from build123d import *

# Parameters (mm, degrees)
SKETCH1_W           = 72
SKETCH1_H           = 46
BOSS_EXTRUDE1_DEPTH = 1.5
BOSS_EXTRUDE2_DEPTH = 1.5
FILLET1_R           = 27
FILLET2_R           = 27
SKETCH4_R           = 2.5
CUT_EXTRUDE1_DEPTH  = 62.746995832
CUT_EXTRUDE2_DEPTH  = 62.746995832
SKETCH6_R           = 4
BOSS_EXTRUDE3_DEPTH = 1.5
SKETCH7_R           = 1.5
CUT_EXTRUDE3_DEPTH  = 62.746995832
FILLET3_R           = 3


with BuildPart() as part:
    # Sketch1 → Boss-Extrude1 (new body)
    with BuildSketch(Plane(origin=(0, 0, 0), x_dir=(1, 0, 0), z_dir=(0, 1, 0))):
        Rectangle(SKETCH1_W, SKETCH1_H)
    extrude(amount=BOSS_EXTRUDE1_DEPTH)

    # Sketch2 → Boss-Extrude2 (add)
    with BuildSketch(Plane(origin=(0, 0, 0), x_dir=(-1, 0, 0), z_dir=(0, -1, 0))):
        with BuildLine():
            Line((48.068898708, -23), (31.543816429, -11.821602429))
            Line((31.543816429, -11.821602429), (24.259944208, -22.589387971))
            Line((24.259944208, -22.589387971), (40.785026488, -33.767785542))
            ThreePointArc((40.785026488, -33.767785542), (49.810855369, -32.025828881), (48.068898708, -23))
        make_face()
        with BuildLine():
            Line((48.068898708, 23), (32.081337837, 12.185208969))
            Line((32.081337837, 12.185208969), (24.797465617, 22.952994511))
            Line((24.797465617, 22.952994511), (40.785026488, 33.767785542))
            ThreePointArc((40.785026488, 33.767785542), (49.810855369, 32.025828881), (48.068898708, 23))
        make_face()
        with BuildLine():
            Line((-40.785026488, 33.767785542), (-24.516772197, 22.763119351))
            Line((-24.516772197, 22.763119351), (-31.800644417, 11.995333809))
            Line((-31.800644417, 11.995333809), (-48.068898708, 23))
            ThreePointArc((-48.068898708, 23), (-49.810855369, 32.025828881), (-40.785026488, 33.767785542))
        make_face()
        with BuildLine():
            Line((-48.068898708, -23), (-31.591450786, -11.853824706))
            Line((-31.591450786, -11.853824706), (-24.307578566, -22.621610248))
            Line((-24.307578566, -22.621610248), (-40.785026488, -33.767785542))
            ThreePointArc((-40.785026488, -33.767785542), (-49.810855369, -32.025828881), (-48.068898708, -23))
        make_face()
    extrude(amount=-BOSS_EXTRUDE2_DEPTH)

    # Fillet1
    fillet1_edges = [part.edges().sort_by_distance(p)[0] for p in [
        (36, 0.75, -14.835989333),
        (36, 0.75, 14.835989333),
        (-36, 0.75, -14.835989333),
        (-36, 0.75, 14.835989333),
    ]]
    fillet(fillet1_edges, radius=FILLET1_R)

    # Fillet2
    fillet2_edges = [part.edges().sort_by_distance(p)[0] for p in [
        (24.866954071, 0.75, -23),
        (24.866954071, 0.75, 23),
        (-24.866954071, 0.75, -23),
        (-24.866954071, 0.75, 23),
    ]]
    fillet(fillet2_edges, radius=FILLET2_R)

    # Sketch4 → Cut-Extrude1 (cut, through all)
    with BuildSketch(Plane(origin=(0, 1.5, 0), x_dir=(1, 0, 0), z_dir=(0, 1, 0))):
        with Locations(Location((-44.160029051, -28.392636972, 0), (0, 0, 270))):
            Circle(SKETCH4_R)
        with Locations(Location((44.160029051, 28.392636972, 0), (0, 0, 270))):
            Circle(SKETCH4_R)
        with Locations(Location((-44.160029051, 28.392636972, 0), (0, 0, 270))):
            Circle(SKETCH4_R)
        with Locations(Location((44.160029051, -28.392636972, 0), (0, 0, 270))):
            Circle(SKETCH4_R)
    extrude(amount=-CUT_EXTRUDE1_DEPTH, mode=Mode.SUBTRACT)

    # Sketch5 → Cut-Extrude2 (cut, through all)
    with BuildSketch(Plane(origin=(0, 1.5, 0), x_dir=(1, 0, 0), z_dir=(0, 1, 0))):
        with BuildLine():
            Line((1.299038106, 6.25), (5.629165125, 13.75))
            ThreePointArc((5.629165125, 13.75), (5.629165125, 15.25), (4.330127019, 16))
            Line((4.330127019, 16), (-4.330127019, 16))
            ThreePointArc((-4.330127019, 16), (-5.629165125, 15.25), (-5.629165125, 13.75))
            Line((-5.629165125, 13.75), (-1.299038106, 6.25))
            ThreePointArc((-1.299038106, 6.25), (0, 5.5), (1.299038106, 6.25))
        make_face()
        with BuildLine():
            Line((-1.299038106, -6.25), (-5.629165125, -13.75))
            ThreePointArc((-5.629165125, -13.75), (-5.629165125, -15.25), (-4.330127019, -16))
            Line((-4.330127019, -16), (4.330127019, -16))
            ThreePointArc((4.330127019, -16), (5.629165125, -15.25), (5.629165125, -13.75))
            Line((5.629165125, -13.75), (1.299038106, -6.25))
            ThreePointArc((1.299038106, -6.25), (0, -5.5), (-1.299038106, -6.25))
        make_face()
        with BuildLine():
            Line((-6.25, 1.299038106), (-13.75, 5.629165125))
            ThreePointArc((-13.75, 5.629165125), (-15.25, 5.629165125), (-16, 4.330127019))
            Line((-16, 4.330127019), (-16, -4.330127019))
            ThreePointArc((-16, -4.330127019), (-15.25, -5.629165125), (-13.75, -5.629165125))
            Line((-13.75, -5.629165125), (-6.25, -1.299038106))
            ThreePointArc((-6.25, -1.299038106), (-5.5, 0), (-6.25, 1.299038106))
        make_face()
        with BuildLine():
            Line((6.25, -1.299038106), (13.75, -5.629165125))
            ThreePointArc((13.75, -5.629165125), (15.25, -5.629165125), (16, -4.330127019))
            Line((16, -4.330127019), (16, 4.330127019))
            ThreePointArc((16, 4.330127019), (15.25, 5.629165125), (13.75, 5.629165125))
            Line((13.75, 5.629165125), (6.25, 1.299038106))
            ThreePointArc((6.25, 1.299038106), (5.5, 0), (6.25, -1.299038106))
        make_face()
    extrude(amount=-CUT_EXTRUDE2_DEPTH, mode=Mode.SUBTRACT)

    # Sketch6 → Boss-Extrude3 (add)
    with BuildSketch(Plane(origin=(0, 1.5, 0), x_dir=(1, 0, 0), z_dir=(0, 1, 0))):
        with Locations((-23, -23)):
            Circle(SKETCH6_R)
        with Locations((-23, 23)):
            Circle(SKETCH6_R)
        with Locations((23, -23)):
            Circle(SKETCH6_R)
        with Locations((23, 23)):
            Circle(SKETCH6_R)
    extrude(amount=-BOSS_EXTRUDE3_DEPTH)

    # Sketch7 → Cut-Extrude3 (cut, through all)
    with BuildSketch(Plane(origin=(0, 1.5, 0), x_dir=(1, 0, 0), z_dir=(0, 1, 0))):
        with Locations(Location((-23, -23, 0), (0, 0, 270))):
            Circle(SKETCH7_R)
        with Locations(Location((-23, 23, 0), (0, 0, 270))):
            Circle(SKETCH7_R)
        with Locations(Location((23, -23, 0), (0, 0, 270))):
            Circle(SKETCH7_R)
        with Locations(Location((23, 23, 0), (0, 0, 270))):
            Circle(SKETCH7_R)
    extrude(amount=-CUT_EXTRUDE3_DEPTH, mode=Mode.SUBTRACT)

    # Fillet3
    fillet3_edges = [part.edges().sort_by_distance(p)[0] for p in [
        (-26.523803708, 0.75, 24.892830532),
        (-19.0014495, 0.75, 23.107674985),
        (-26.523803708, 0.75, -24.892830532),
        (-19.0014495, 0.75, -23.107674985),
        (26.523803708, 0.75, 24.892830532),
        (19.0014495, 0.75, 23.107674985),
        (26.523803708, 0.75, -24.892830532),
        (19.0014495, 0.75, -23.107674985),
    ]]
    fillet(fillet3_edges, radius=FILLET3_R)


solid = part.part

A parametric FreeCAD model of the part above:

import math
import FreeCAD as App
import Part
import Sketcher
Q = App.Units.Quantity


def edges_at(feature, points):
    """Names of the edges that pass closest to the given points."""
    edges = feature.Shape.Edges
    near = lambda p: min(range(len(edges)), key=lambda i: edges[i].distToShape(Part.Vertex(*p))[0])
    return sorted({f"Edge{near(p) + 1}" for p in points})


def add_polygon(sketch, points):
    """Adds a closed chain of lines whose ends are joined by coincident constraints."""
    first, n = sketch.GeometryCount, len(points)
    for a, b in zip(points, points[1:] + points[:1]):
        sketch.addGeometry(Part.LineSegment(App.Vector(*a, 0), App.Vector(*b, 0)), False)
    for i in range(n):
        sketch.addConstraint(Sketcher.Constraint("Coincident", first + i, 2, first + (i + 1) % n, 1))

doc = App.newDocument("Part")
body = doc.addObject("PartDesign::Body", "Body")

# Sketch on XZ plane
sketch1 = body.newObject("Sketcher::SketchObject", "Sketch")
sketch1.AttachmentSupport = (doc.getObject("XZ_Plane"), [""])
sketch1.MapMode = "FlatFace"
add_polygon(sketch1, [(-36, -23), (-36, 23), (36, 23), (36, -23)])  # lines 0-3
sketch1.addConstraint([
    Sketcher.Constraint("Vertical", 0),
    Sketcher.Constraint("Horizontal", 1),
    Sketcher.Constraint("Vertical", 2),
    Sketcher.Constraint("Horizontal", 3),
    Sketcher.Constraint("Symmetric", 0, 2, 2, 2, -1, 1),
    Sketcher.Constraint("DistanceX", 1, 1, 1, 2, Q("72 mm")),
    Sketcher.Constraint("DistanceY", 0, 1, 0, 2, Q("46 mm")),
])
pad1 = body.newObject("PartDesign::Pad", "Pad")
pad1.Profile = sketch1
pad1.Length = 1.5
pad1.Reversed = True

# Sketch on XZ plane
sketch2 = body.newObject("Sketcher::SketchObject", "Sketch001")
sketch2.AttachmentSupport = (doc.getObject("XZ_Plane"), [""])
sketch2.MapMode = "FlatFace"
sketch2.addGeometry([
    Part.LineSegment(App.Vector(-48, 23, 0), App.Vector(-32, 12, 0)),  # 0
    Part.LineSegment(App.Vector(-32, 12, 0), App.Vector(-24, 23, 0)),  # 1
    Part.LineSegment(App.Vector(-24, 23, 0), App.Vector(-41, 34, 0)),  # 2
    Part.ArcOfCircle(Part.Circle(App.Vector(-44, 28, 0), App.Vector(0, 0, 1), 6), math.radians(56), math.radians(236)),  # 3
    Part.LineSegment(App.Vector(-32, -12, 0), App.Vector(-48, -23, 0)),  # 4
    Part.ArcOfCircle(Part.Circle(App.Vector(-44, -28, 0), App.Vector(0, 0, 1), 6), math.radians(124), math.radians(304)),  # 5
    Part.LineSegment(App.Vector(-41, -34, 0), App.Vector(-25, -23, 0)),  # 6
    Part.LineSegment(App.Vector(-25, -23, 0), App.Vector(-32, -12, 0)),  # 7
    Part.LineSegment(App.Vector(25, -23, 0), App.Vector(41, -34, 0)),  # 8
    Part.ArcOfCircle(Part.Circle(App.Vector(44, -28, 0), App.Vector(0, 0, 1), 6), math.radians(-124), math.radians(56)),  # 9
    Part.LineSegment(App.Vector(48, -23, 0), App.Vector(32, -12, 0)),  # 10
    Part.LineSegment(App.Vector(32, -12, 0), App.Vector(25, -23, 0)),  # 11
    Part.LineSegment(App.Vector(32, 12, 0), App.Vector(48, 23, 0)),  # 12
    Part.ArcOfCircle(Part.Circle(App.Vector(44, 28, 0), App.Vector(0, 0, 1), 6), math.radians(-56), math.radians(124)),  # 13
    Part.LineSegment(App.Vector(41, 34, 0), App.Vector(24, 23, 0)),  # 14
    Part.LineSegment(App.Vector(24, 23, 0), App.Vector(32, 12, 0)),  # 15
], False)
sketch2.addConstraint([
    Sketcher.Constraint("Coincident", 0, 2, 1, 1),
    Sketcher.Constraint("Coincident", 1, 2, 2, 1),
    Sketcher.Constraint("Tangent", 2, 2, 3, 1),
    Sketcher.Constraint("Tangent", 3, 2, 0, 1),
    Sketcher.Constraint("Tangent", 4, 2, 5, 1),
    Sketcher.Constraint("Tangent", 5, 2, 6, 1),
    Sketcher.Constraint("Coincident", 6, 2, 7, 1),
    Sketcher.Constraint("Coincident", 7, 2, 4, 1),
    Sketcher.Constraint("Tangent", 8, 2, 9, 1),
    Sketcher.Constraint("Tangent", 9, 2, 10, 1),
    Sketcher.Constraint("Coincident", 10, 2, 11, 1),
    Sketcher.Constraint("Coincident", 11, 2, 8, 1),
    Sketcher.Constraint("Tangent", 12, 2, 13, 1),
    Sketcher.Constraint("Tangent", 13, 2, 14, 1),
    Sketcher.Constraint("Coincident", 14, 2, 15, 1),
    Sketcher.Constraint("Coincident", 15, 2, 12, 1),
    Sketcher.Constraint("Equal", 3, 5),
    Sketcher.Constraint("Equal", 5, 9),
    Sketcher.Constraint("Equal", 9, 13),
    Sketcher.Constraint("Symmetric", 3, 3, 9, 3, -1, 1),
    Sketcher.Constraint("Symmetric", 5, 3, 13, 3, -1, 1),
    Sketcher.Constraint("Symmetric", 5, 3, 9, 3, -2),
    Sketcher.Constraint("Perpendicular", 0, 1),
    Sketcher.Constraint("Perpendicular", 1, 2),
    Sketcher.Constraint("Parallel", 4, 6),
    Sketcher.Constraint("Perpendicular", 6, 7),
    Sketcher.Constraint("Parallel", 2, 8),
    Sketcher.Constraint("Parallel", 8, 10),
    Sketcher.Constraint("Perpendicular", 10, 11),
    Sketcher.Constraint("Perpendicular", 7, 12),
    Sketcher.Constraint("Parallel", 12, 14),
    Sketcher.Constraint("Perpendicular", 14, 15),
    Sketcher.Constraint("Horizontal", 5, 2, 8, 2),
    Sketcher.Constraint("Radius", 3, Q("6.5 mm")),
    Sketcher.Constraint("DistanceY", -1, 1, 3, 2, Q("23 mm")),
    Sketcher.Constraint("DistanceX", 3, 2, -1, 1, Q("48.068899 mm")),
    Sketcher.Constraint("DistanceY", 5, 3, 6, 2, Q("5.430898 mm")),
    Sketcher.Constraint("Distance", 4, Q("19.30186 mm")),
    Sketcher.Constraint("DistanceY", 11, 2, -1, 1, Q("22.763119 mm")),
    Sketcher.Constraint("DistanceX", -1, 1, 14, 2, Q("24.307579 mm")),
    Sketcher.Constraint("DistanceY", 0, 2, 3, 3, Q("16.56229 mm")),
])
pad2 = body.newObject("PartDesign::Pad", "Pad001")
pad2.Profile = sketch2
pad2.Length = 1.5
pad2.Reversed = True
doc.recompute()

fillet = body.newObject("PartDesign::Fillet", "Fillet")
fillet.Base = (pad2, edges_at(pad2, [
    (36, 0.75, -14.836),
    (36, 0.75, 14.836),
    (-36, 0.75, -14.836),
    (-36, 0.75, 14.836),
]))
fillet.Radius = 27
doc.recompute()

fillet2 = body.newObject("PartDesign::Fillet", "Fillet001")
fillet2.Base = (fillet, edges_at(fillet, [
    (24.867, 0.75, -23),
    (24.867, 0.75, 23),
    (-24.867, 0.75, -23),
    (-24.867, 0.75, 23),
]))
fillet2.Radius = 27

# Sketch on XZ plane
sketch3 = body.newObject("Sketcher::SketchObject", "Sketch002")
sketch3.AttachmentSupport = (doc.getObject("XZ_Plane"), [""])
sketch3.MapMode = "FlatFace"
sketch3.AttachmentOffset = App.Placement(App.Vector(0, 0, -1.5), App.Rotation())
sketch3.addGeometry([
    Part.Circle(App.Vector(-44.2, 28.4, 0), App.Vector(0, 0, 1), 2.5),
    Part.Circle(App.Vector(44.2, -28.4, 0), App.Vector(0, 0, 1), 2.5),
    Part.Circle(App.Vector(-44.2, -28.4, 0), App.Vector(0, 0, 1), 2.5),
    Part.Circle(App.Vector(44.2, 28.4, 0), App.Vector(0, 0, 1), 2.5),
], False)
sketch3.addConstraint([
    Sketcher.Constraint("Equal", 0, 1),
    Sketcher.Constraint("Equal", 1, 2),
    Sketcher.Constraint("Equal", 2, 3),
    Sketcher.Constraint("Symmetric", 0, 3, 1, 3, -1, 1),
    Sketcher.Constraint("Symmetric", 2, 3, 3, 3, -1, 1),
    Sketcher.Constraint("Symmetric", 1, 3, 2, 3, -2),
    Sketcher.Constraint("Diameter", 0, Q("5 mm")),
    Sketcher.Constraint("DistanceX", 0, 3, -1, 1, Q("44.160029 mm")),
    Sketcher.Constraint("DistanceY", -1, 1, 0, 3, Q("28.392637 mm")),
])
pocket1 = body.newObject("PartDesign::Pocket", "Pocket")
pocket1.Profile = sketch3
pocket1.Type = "ThroughAll"
pocket1.Reversed = True

# Sketch on XZ plane
sketch4 = body.newObject("Sketcher::SketchObject", "Sketch003")
sketch4.AttachmentSupport = (doc.getObject("XZ_Plane"), [""])
sketch4.MapMode = "FlatFace"
sketch4.AttachmentOffset = App.Placement(App.Vector(0, 0, -1.5), App.Rotation())
sketch4.addGeometry([
    Part.LineSegment(App.Vector(1.3, -6.2, 0), App.Vector(5.6, -13.8, 0)),  # 0
    Part.ArcOfCircle(Part.Circle(App.Vector(4.3, -14.5, 0), App.Vector(0, 0, 1), 1.5), math.radians(-90), math.radians(30)),  # 1
    Part.LineSegment(App.Vector(4.3, -16, 0), App.Vector(-4.3, -16, 0)),  # 2
    Part.ArcOfCircle(Part.Circle(App.Vector(-4.3, -14.5, 0), App.Vector(0, 0, 1), 1.5), math.radians(150), math.radians(270)),  # 3
    Part.LineSegment(App.Vector(-5.6, -13.8, 0), App.Vector(-1.3, -6.2, 0)),  # 4
    Part.ArcOfCircle(Part.Circle(App.Vector(0, -7, 0), App.Vector(0, 0, 1), 1.5), math.radians(30), math.radians(150)),  # 5
    Part.LineSegment(App.Vector(-1.3, 6.2, 0), App.Vector(-5.6, 13.8, 0)),  # 6
    Part.ArcOfCircle(Part.Circle(App.Vector(-4.3, 14.5, 0), App.Vector(0, 0, 1), 1.5), math.radians(90), math.radians(210)),  # 7
    Part.LineSegment(App.Vector(-4.3, 16, 0), App.Vector(4.3, 16, 0)),  # 8
    Part.ArcOfCircle(Part.Circle(App.Vector(4.3, 14.5, 0), App.Vector(0, 0, 1), 1.5), math.radians(-30), math.radians(90)),  # 9
    Part.LineSegment(App.Vector(5.6, 13.8, 0), App.Vector(1.3, 6.2, 0)),  # 10
    Part.ArcOfCircle(Part.Circle(App.Vector(0, 7, 0), App.Vector(0, 0, 1), 1.5), math.radians(-150), math.radians(-30)),  # 11
    Part.LineSegment(App.Vector(-6.2, -1.3, 0), App.Vector(-13.8, -5.6, 0)),  # 12
    Part.ArcOfCircle(Part.Circle(App.Vector(-14.5, -4.3, 0), App.Vector(0, 0, 1), 1.5), math.radians(180), math.radians(300)),  # 13
    Part.LineSegment(App.Vector(-16, -4.3, 0), App.Vector(-16, 4.3, 0)),  # 14
    Part.ArcOfCircle(Part.Circle(App.Vector(-14.5, 4.3, 0), App.Vector(0, 0, 1), 1.5), math.radians(60), math.radians(180)),  # 15
    Part.LineSegment(App.Vector(-13.8, 5.6, 0), App.Vector(-6.2, 1.3, 0)),  # 16
    Part.ArcOfCircle(Part.Circle(App.Vector(-7, 0, 0), App.Vector(0, 0, 1), 1.5), math.radians(-60), math.radians(60)),  # 17
    Part.LineSegment(App.Vector(6.2, 1.3, 0), App.Vector(13.8, 5.6, 0)),  # 18
    Part.ArcOfCircle(Part.Circle(App.Vector(14.5, 4.3, 0), App.Vector(0, 0, 1), 1.5), math.radians(0), math.radians(120)),  # 19
    Part.LineSegment(App.Vector(16, 4.3, 0), App.Vector(16, -4.3, 0)),  # 20
    Part.ArcOfCircle(Part.Circle(App.Vector(14.5, -4.3, 0), App.Vector(0, 0, 1), 1.5), math.radians(-120), math.radians(0)),  # 21
    Part.LineSegment(App.Vector(13.8, -5.6, 0), App.Vector(6.2, -1.3, 0)),  # 22
    Part.ArcOfCircle(Part.Circle(App.Vector(7, 0, 0), App.Vector(0, 0, 1), 1.5), math.radians(120), math.radians(240)),  # 23
], False)
sketch4.addConstraint([
    Sketcher.Constraint("Tangent", 0, 2, 1, 2),
    Sketcher.Constraint("Tangent", 1, 1, 2, 1),
    Sketcher.Constraint("Tangent", 2, 2, 3, 2),
    Sketcher.Constraint("Tangent", 3, 1, 4, 1),
    Sketcher.Constraint("Tangent", 4, 2, 5, 2),
    Sketcher.Constraint("Tangent", 5, 1, 0, 1),
    Sketcher.Constraint("Tangent", 6, 2, 7, 2),
    Sketcher.Constraint("Tangent", 7, 1, 8, 1),
    Sketcher.Constraint("Tangent", 8, 2, 9, 2),
    Sketcher.Constraint("Tangent", 9, 1, 10, 1),
    Sketcher.Constraint("Tangent", 10, 2, 11, 2),
    Sketcher.Constraint("Tangent", 11, 1, 6, 1),
    Sketcher.Constraint("Tangent", 12, 2, 13, 2),
    Sketcher.Constraint("Tangent", 13, 1, 14, 1),
    Sketcher.Constraint("Tangent", 14, 2, 15, 2),
    Sketcher.Constraint("Tangent", 15, 1, 16, 1),
    Sketcher.Constraint("Tangent", 16, 2, 17, 2),
    Sketcher.Constraint("Tangent", 17, 1, 12, 1),
    Sketcher.Constraint("Tangent", 18, 2, 19, 2),
    Sketcher.Constraint("Tangent", 19, 1, 20, 1),
    Sketcher.Constraint("Tangent", 20, 2, 21, 2),
    Sketcher.Constraint("Tangent", 21, 1, 22, 1),
    Sketcher.Constraint("Tangent", 22, 2, 23, 2),
    Sketcher.Constraint("Tangent", 23, 1, 18, 1),
    Sketcher.Constraint("Horizontal", 2),
    Sketcher.Constraint("Horizontal", 8),
    Sketcher.Constraint("Vertical", 14),
    Sketcher.Constraint("Vertical", 20),
    Sketcher.Constraint("Equal", 1, 3),
    Sketcher.Constraint("Equal", 3, 5),
    Sketcher.Constraint("Equal", 5, 7),
    Sketcher.Constraint("Equal", 7, 9),
    Sketcher.Constraint("Equal", 9, 11),
    Sketcher.Constraint("Equal", 11, 13),
    Sketcher.Constraint("Equal", 13, 15),
    Sketcher.Constraint("Equal", 15, 17),
    Sketcher.Constraint("Equal", 17, 19),
    Sketcher.Constraint("Equal", 19, 21),
    Sketcher.Constraint("Equal", 21, 23),
    Sketcher.Constraint("Symmetric", 1, 3, 7, 3, -1, 1),
    Sketcher.Constraint("Symmetric", 5, 3, 11, 3, -1, 1),
    Sketcher.Constraint("Symmetric", 13, 3, 19, 3, -1, 1),
    Sketcher.Constraint("Symmetric", 17, 3, 23, 3, -1, 1),
    Sketcher.Constraint("Symmetric", 0, 2, 3, 1, -2),
    Sketcher.Constraint("Symmetric", 15, 1, 18, 2, -2),
    Sketcher.Constraint("Parallel", 4, 10),
    Sketcher.Constraint("Perpendicular", 6, 12),
    Sketcher.Constraint("Parallel", 16, 22),
    Sketcher.Constraint("Equal", 8, 14),
    Sketcher.Constraint("Radius", 1, Q("1.5 mm")),
    Sketcher.Constraint("Angle", 0, Q("-60 deg")),
    Sketcher.Constraint("DistanceY", 5, 3, -1, 1, Q("7 mm")),
    Sketcher.Constraint("DistanceX", 17, 3, -1, 1, Q("7 mm")),
    Sketcher.Constraint("DistanceY", 1, 1, -1, 1, Q("16 mm")),
])
pocket2 = body.newObject("PartDesign::Pocket", "Pocket001")
pocket2.Profile = sketch4
pocket2.Type = "ThroughAll"
pocket2.Reversed = True

# Sketch on XZ plane
sketch5 = body.newObject("Sketcher::SketchObject", "Sketch004")
sketch5.AttachmentSupport = (doc.getObject("XZ_Plane"), [""])
sketch5.MapMode = "FlatFace"
sketch5.AttachmentOffset = App.Placement(App.Vector(0, 0, -1.5), App.Rotation())
sketch5.addGeometry([
    Part.Circle(App.Vector(-23, 23, 0), App.Vector(0, 0, 1), 4),
    Part.Circle(App.Vector(-23, -23, 0), App.Vector(0, 0, 1), 4),
    Part.Circle(App.Vector(23, 23, 0), App.Vector(0, 0, 1), 4),
    Part.Circle(App.Vector(23, -23, 0), App.Vector(0, 0, 1), 4),
], False)
sketch5.addConstraint([
    Sketcher.Constraint("Equal", 0, 1),
    Sketcher.Constraint("Equal", 1, 2),
    Sketcher.Constraint("Equal", 2, 3),
    Sketcher.Constraint("Symmetric", 1, 3, 2, 3, -1, 1),
    Sketcher.Constraint("Symmetric", 0, 3, 3, 3, -1, 1),
    Sketcher.Constraint("Symmetric", 0, 3, 2, 3, -2),
    Sketcher.Constraint("Diameter", 0, Q("8 mm")),
    Sketcher.Constraint("DistanceX", 0, 3, -1, 1, Q("23 mm")),
    Sketcher.Constraint("DistanceY", -1, 1, 0, 3, Q("23 mm")),
])
pad3 = body.newObject("PartDesign::Pad", "Pad002")
pad3.Profile = sketch5
pad3.Length = 1.5

# Sketch on XZ plane
sketch6 = body.newObject("Sketcher::SketchObject", "Sketch005")
sketch6.AttachmentSupport = (doc.getObject("XZ_Plane"), [""])
sketch6.MapMode = "FlatFace"
sketch6.AttachmentOffset = App.Placement(App.Vector(0, 0, -1.5), App.Rotation())
sketch6.addGeometry([
    Part.Circle(App.Vector(-23, 23, 0), App.Vector(0, 0, 1), 1.5),
    Part.Circle(App.Vector(-23, -23, 0), App.Vector(0, 0, 1), 1.5),
    Part.Circle(App.Vector(23, 23, 0), App.Vector(0, 0, 1), 1.5),
    Part.Circle(App.Vector(23, -23, 0), App.Vector(0, 0, 1), 1.5),
], False)
sketch6.addConstraint([
    Sketcher.Constraint("Equal", 0, 1),
    Sketcher.Constraint("Equal", 1, 2),
    Sketcher.Constraint("Equal", 2, 3),
    Sketcher.Constraint("Symmetric", 1, 3, 2, 3, -1, 1),
    Sketcher.Constraint("Symmetric", 0, 3, 3, 3, -1, 1),
    Sketcher.Constraint("Symmetric", 0, 3, 2, 3, -2),
    Sketcher.Constraint("Diameter", 0, Q("3 mm")),
    Sketcher.Constraint("DistanceX", 0, 3, -1, 1, Q("23 mm")),
    Sketcher.Constraint("DistanceY", -1, 1, 0, 3, Q("23 mm")),
])
pocket3 = body.newObject("PartDesign::Pocket", "Pocket002")
pocket3.Profile = sketch6
pocket3.Type = "ThroughAll"
pocket3.Reversed = True
doc.recompute()

fillet3 = body.newObject("PartDesign::Fillet", "Fillet002")
fillet3.Base = (pocket3, edges_at(pocket3, [
    (-26.524, 0.75, 24.893),
    (-19.001, 0.75, 23.108),
    (-26.524, 0.75, -24.893),
    (-19.001, 0.75, -23.108),
    (26.524, 0.75, 24.893),
    (19.001, 0.75, 23.108),
    (26.524, 0.75, -24.893),
    (19.001, 0.75, -23.108),
]))
fillet3.Radius = 3

doc.recompute()
